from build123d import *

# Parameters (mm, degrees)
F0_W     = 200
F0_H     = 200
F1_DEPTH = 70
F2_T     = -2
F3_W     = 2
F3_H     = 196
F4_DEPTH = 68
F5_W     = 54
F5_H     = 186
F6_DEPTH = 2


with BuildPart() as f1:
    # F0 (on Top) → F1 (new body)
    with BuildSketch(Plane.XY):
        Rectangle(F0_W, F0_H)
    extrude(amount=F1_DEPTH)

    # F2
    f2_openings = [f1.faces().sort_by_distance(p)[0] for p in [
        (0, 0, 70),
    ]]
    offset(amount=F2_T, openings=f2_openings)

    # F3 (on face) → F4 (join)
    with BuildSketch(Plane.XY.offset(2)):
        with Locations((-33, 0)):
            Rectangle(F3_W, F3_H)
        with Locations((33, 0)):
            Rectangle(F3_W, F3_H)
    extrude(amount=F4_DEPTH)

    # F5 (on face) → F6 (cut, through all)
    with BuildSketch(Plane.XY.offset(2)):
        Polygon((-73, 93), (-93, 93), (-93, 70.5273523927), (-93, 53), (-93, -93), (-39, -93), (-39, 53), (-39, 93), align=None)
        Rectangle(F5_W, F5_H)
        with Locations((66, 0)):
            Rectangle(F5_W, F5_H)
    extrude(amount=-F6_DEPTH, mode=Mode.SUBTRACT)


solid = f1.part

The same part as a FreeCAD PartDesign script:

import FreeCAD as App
import Part
import Sketcher

V = App.Vector


def faces_at(feature, points):
    """Names of the faces that lie closest to the given points."""
    faces = feature.Shape.Faces
    near = lambda p: min(range(len(faces)), key=lambda i: faces[i].distToShape(Part.Vertex(*p))[0])
    return sorted({f"Face{near(p) + 1}" for p in points})


def add_polygon(sketch, points):
    """Adds a closed chain of lines whose ends are joined by coincident constraints."""
    first, n = sketch.GeometryCount, len(points)
    for a, b in zip(points, points[1:] + points[:1]):
        sketch.addGeometry(Part.LineSegment(App.Vector(*a, 0), App.Vector(*b, 0)), False)
    for i in range(n):
        sketch.addConstraint(Sketcher.Constraint("Coincident", first + i, 2, first + (i + 1) % n, 1))

doc = App.newDocument("Part")
body = doc.addObject("PartDesign::Body", "Body")

# Sketch on XY plane
sketch1 = body.newObject("Sketcher::SketchObject", "Sketch")
sketch1.AttachmentSupport = (doc.getObject("XY_Plane"), [""])
sketch1.MapMode = "FlatFace"
add_polygon(sketch1, [(-100, 100), (-100, -100), (100, -100), (100, 100)])  # lines 0-3
sketch1.addConstraint(Sketcher.Constraint("Vertical", 0))
sketch1.addConstraint(Sketcher.Constraint("Horizontal", 1))
sketch1.addConstraint(Sketcher.Constraint("Vertical", 2))
sketch1.addConstraint(Sketcher.Constraint("Horizontal", 3))
sketch1.addConstraint(Sketcher.Constraint("Symmetric", 0, 2, 2, 2, -1, 1))
sketch1.addConstraint(Sketcher.Constraint("Equal", 3, 0))
sketch1.addConstraint(Sketcher.Constraint("DistanceX", 1, 1, 1, 2, 200.0))
pad1 = body.newObject("PartDesign::Pad", "Pad")
pad1.Profile = sketch1
pad1.Length = 70
doc.recompute()

thickness = body.newObject("PartDesign::Thickness", "Thickness")
thickness.Base = (pad1, faces_at(pad1, [(0, 0, 70)]))
thickness.Value = 2
thickness.Reversed = True
thickness.Join = "Arc"

# Sketch on XY plane
sketch2 = body.newObject("Sketcher::SketchObject", "Sketch001")
sketch2.AttachmentSupport = (doc.getObject("XY_Plane"), [""])
sketch2.MapMode = "FlatFace"
sketch2.AttachmentOffset = App.Placement(V(0, 0, 2), App.Rotation())
add_polygon(sketch2, [(-34, 98), (-34, -98), (-32, -98), (-32, 98)])  # lines 0-3
add_polygon(sketch2, [(32, 98), (32, -98), (34, -98), (34, 98)])  # lines 4-7
sketch2.addConstraint(Sketcher.Constraint("Vertical", 0))
sketch2.addConstraint(Sketcher.Constraint("Horizontal", 1))
sketch2.addConstraint(Sketcher.Constraint("Vertical", 2))
sketch2.addConstraint(Sketcher.Constraint("Horizontal", 3))
sketch2.addConstraint(Sketcher.Constraint("Vertical", 4))
sketch2.addConstraint(Sketcher.Constraint("Horizontal", 5))
sketch2.addConstraint(Sketcher.Constraint("Vertical", 6))
sketch2.addConstraint(Sketcher.Constraint("Horizontal", 7))
sketch2.addConstraint(Sketcher.Constraint("Symmetric", 2, 2, 4, 2, -1, 1))
sketch2.addConstraint(Sketcher.Constraint("Symmetric", 0, 2, 6, 2, -1, 1))
sketch2.addConstraint(Sketcher.Constraint("Horizontal", 1, 2, 4, 2))
sketch2.addConstraint(Sketcher.Constraint("DistanceX", 1, 1, 1, 2, 2.0))
sketch2.addConstraint(Sketcher.Constraint("DistanceY", 0, 2, 0, 1, 196.0))
sketch2.addConstraint(Sketcher.Constraint("DistanceX", 0, 2, -1, 1, 34.0))
pad2 = body.newObject("PartDesign::Pad", "Pad001")
pad2.Profile = sketch2
pad2.Length = 68

# Sketch on XY plane
sketch3 = body.newObject("Sketcher::SketchObject", "Sketch002")
sketch3.AttachmentSupport = (doc.getObject("XY_Plane"), [""])
sketch3.MapMode = "FlatFace"
sketch3.AttachmentOffset = App.Placement(V(0, 0, 2), App.Rotation())
add_polygon(sketch3, [(-93, 93), (-93, -93), (-39, -93), (-39, 93)])  # lines 0-3
add_polygon(sketch3, [(-27, 93), (-27, -93), (27, -93), (27, 93)])  # lines 4-7
add_polygon(sketch3, [(39, 93), (39, -93), (93, -93), (93, 93)])  # lines 8-11
sketch3.addConstraint(Sketcher.Constraint("Vertical", 0))
sketch3.addConstraint(Sketcher.Constraint("Horizontal", 1))
sketch3.addConstraint(Sketcher.Constraint("Vertical", 2))
sketch3.addConstraint(Sketcher.Constraint("Horizontal", 3))
sketch3.addConstraint(Sketcher.Constraint("Vertical", 4))
sketch3.addConstraint(Sketcher.Constraint("Horizontal", 5))
sketch3.addConstraint(Sketcher.Constraint("Vertical", 6))
sketch3.addConstraint(Sketcher.Constraint("Horizontal", 7))
sketch3.addConstraint(Sketcher.Constraint("Vertical", 8))
sketch3.addConstraint(Sketcher.Constraint("Horizontal", 9))
sketch3.addConstraint(Sketcher.Constraint("Vertical", 10))
sketch3.addConstraint(Sketcher.Constraint("Horizontal", 11))
sketch3.addConstraint(Sketcher.Constraint("Symmetric", 4, 2, 6, 2, -1, 1))
sketch3.addConstraint(Sketcher.Constraint("Symmetric", 2, 2, 8, 2, -1, 1))
sketch3.addConstraint(Sketcher.Constraint("Symmetric", 0, 2, 10, 2, -1, 1))
sketch3.addConstraint(Sketcher.Constraint("Horizontal", 1, 2, 4, 2))
sketch3.addConstraint(Sketcher.Constraint("Horizontal", 3, 2, 6, 2))
sketch3.addConstraint(Sketcher.Constraint("Equal", 3, 5))
sketch3.addConstraint(Sketcher.Constraint("DistanceX", 1, 1, 1, 2, 54.0))
sketch3.addConstraint(Sketcher.Constraint("DistanceY", 0, 2, 0, 1, 186.0))
sketch3.addConstraint(Sketcher.Constraint("DistanceX", 0, 2, -1, 1, 93.0))
pocket1 = body.newObject("PartDesign::Pocket", "Pocket")
pocket1.Profile = sketch3
pocket1.Type = "ThroughAll"

doc.recompute()
